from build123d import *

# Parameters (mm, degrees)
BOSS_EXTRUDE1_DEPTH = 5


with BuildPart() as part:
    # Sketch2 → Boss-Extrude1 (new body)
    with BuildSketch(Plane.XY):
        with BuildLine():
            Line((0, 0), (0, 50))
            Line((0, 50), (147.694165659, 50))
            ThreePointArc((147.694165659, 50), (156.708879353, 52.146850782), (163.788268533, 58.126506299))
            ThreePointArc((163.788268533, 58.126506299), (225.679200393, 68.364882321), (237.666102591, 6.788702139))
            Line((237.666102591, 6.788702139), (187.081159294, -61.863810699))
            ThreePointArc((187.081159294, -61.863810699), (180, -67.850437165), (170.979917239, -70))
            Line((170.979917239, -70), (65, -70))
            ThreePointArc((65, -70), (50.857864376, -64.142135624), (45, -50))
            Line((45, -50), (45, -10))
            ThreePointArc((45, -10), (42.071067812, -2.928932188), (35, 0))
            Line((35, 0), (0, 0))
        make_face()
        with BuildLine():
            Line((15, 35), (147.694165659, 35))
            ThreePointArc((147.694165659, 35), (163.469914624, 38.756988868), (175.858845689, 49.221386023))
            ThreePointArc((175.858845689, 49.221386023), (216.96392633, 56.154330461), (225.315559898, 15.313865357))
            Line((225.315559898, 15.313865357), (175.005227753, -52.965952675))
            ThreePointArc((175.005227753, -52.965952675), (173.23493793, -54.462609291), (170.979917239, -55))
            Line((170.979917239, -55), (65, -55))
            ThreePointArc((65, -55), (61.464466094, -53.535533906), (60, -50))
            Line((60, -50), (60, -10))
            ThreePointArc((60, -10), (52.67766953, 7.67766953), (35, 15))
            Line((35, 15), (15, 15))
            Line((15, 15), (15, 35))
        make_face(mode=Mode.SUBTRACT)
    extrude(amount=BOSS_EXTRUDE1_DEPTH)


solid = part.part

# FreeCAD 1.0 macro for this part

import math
import FreeCAD as App
import Part
import Sketcher

V = App.Vector
Q = App.Units.Quantity

doc = App.newDocument("Part")
body = doc.addObject("PartDesign::Body", "Body")

# Sketch on XY plane
sketch1 = body.newObject("Sketcher::SketchObject", "Sketch")
sketch1.AttachmentSupport = (doc.getObject("XY_Plane"), [""])
sketch1.MapMode = "FlatFace"
sketch1.addGeometry([
    Part.LineSegment(V(0, 50, 0), V(0, 0, 0)),  # 0
    Part.LineSegment(V(0, 0, 0), V(35, 0, 0)),  # 1
    Part.ArcOfCircle(Part.Circle(V(35, -10, 0), V(0, 0, 1), 10), math.radians(0), math.radians(90)),  # 2
    Part.LineSegment(V(45, -10, 0), V(45, -50, 0)),  # 3
    Part.ArcOfCircle(Part.Circle(V(65, -50, 0), V(0, 0, 1), 20), math.radians(180), math.radians(270)),  # 4
    Part.LineSegment(V(65, -70, 0), V(171, -70, 0)),  # 5
    Part.ArcOfCircle(Part.Circle(V(171, -50, 0), V(0, 0, 1), 20), math.radians(-90), math.radians(-36)),  # 6
    Part.LineSegment(V(187.1, -61.9, 0), V(237.7, 6.8, 0)),  # 7
    Part.ArcOfCircle(Part.Circle(V(200, 31.4, 0), V(0, 0, 1), 45), math.radians(-33), math.radians(144)),  # 8
    Part.ArcOfCircle(Part.Circle(V(147.7, 70, 0), V(0, 0, 1), 20), math.radians(-90), math.radians(-36)),  # 9
    Part.LineSegment(V(147.7, 50, 0), V(0, 50, 0)),  # 10
    Part.LineSegment(V(15, 35, 0), V(147.7, 35, 0)),  # 11
    Part.ArcOfCircle(Part.Circle(V(147.7, 70, 0), V(0, 0, 1), 35), math.radians(-90), math.radians(-36)),  # 12
    Part.ArcOfCircle(Part.Circle(V(200, 31.4, 0), V(0, 0, 1), 30), math.radians(-32), math.radians(144)),  # 13
    Part.LineSegment(V(225.3, 15.3, 0), V(175, -53, 0)),  # 14
    Part.ArcOfCircle(Part.Circle(V(171, -50, 0), V(0, 0, 1), 5), math.radians(-90), math.radians(-36)),  # 15
    Part.LineSegment(V(171, -55, 0), V(65, -55, 0)),  # 16
    Part.ArcOfCircle(Part.Circle(V(65, -50, 0), V(0, 0, 1), 5), math.radians(180), math.radians(270)),  # 17
    Part.LineSegment(V(60, -50, 0), V(60, -10, 0)),  # 18
    Part.ArcOfCircle(Part.Circle(V(35, -10, 0), V(0, 0, 1), 25), math.radians(0), math.radians(90)),  # 19
    Part.LineSegment(V(35, 15, 0), V(15, 15, 0)),  # 20
    Part.LineSegment(V(15, 15, 0), V(15, 35, 0)),  # 21
], False)
sketch1.addConstraint([
    Sketcher.Constraint("Coincident", 0, 2, 1, 1),
    Sketcher.Constraint("Tangent", 1, 2, 2, 2),
    Sketcher.Constraint("Tangent", 2, 1, 3, 1),
    Sketcher.Constraint("Tangent", 3, 2, 4, 1),
    Sketcher.Constraint("Tangent", 4, 2, 5, 1),
    Sketcher.Constraint("Tangent", 5, 2, 6, 1),
    Sketcher.Constraint("Tangent", 6, 2, 7, 1),
    Sketcher.Constraint("Coincident", 7, 2, 8, 1),
    Sketcher.Constraint("Tangent", 8, 2, 9, 2),
    Sketcher.Constraint("Tangent", 9, 1, 10, 1),
    Sketcher.Constraint("Coincident", 10, 2, 0, 1),
    Sketcher.Constraint("Tangent", 11, 2, 12, 1),
    Sketcher.Constraint("Tangent", 12, 2, 13, 2),
    Sketcher.Constraint("Coincident", 13, 1, 14, 1),
    Sketcher.Constraint("Tangent", 14, 2, 15, 2),
    Sketcher.Constraint("Tangent", 15, 1, 16, 1),
    Sketcher.Constraint("Tangent", 16, 2, 17, 2),
    Sketcher.Constraint("Tangent", 17, 1, 18, 1),
    Sketcher.Constraint("Tangent", 18, 2, 19, 1),
    Sketcher.Constraint("Tangent", 19, 2, 20, 1),
    Sketcher.Constraint("Coincident", 20, 2, 21, 1),
    Sketcher.Constraint("Coincident", 21, 2, 11, 1),
    Sketcher.Constraint("Vertical", 0),
    Sketcher.Constraint("Horizontal", 1),
    Sketcher.Constraint("Vertical", 3),
    Sketcher.Constraint("Horizontal", 5),
    Sketcher.Constraint("Horizontal", 10),
    Sketcher.Constraint("Horizontal", 11),
    Sketcher.Constraint("Horizontal", 16),
    Sketcher.Constraint("Vertical", 18),
    Sketcher.Constraint("Horizontal", 20),
    Sketcher.Constraint("Vertical", 21),
    Sketcher.Constraint("Coincident", 0, 2, -1, 1),
    Sketcher.Constraint("Coincident", 12, 3, 9, 3),
    Sketcher.Constraint("Coincident", 13, 3, 8, 3),
    Sketcher.Constraint("Coincident", 15, 3, 6, 3),
    Sketcher.Constraint("Coincident", 17, 3, 4, 3),
    Sketcher.Constraint("Coincident", 19, 3, 2, 3),
    Sketcher.Constraint("Equal", 4, 6),
    Sketcher.Constraint("Equal", 6, 9),
    Sketcher.Constraint("Parallel", 7, 14),
    Sketcher.Constraint("Equal", 20, 21),
    Sketcher.Constraint("Radius", 2, Q("10 mm")),
    Sketcher.Constraint("Radius", 4, Q("20 mm")),
    Sketcher.Constraint("Radius", 8, Q("45 mm")),
    Sketcher.Constraint("Radius", 12, Q("35 mm")),
    Sketcher.Constraint("Radius", 15, Q("5 mm")),
    Sketcher.Constraint("DistanceX", 1, 1, 1, 2, Q("35 mm")),
    Sketcher.Constraint("DistanceX", 20, 2, 20, 1, Q("20 mm")),
    Sketcher.Constraint("DistanceY", 3, 2, 3, 1, Q("40 mm")),
    Sketcher.Constraint("DistanceX", -1, 1, 8, 3, Q("200 mm")),
    Sketcher.Constraint("DistanceX", 5, 1, 5, 2, Q("105.979917 mm")),
    Sketcher.Constraint("DistanceX", 10, 2, 10, 1, Q("147.694166 mm")),
    Sketcher.Constraint("DistanceX", -1, 1, 13, 1, Q("225.31556 mm")),
])
pad1 = body.newObject("PartDesign::Pad", "Pad")
pad1.Profile = sketch1
pad1.Length = 5

doc.recompute()
